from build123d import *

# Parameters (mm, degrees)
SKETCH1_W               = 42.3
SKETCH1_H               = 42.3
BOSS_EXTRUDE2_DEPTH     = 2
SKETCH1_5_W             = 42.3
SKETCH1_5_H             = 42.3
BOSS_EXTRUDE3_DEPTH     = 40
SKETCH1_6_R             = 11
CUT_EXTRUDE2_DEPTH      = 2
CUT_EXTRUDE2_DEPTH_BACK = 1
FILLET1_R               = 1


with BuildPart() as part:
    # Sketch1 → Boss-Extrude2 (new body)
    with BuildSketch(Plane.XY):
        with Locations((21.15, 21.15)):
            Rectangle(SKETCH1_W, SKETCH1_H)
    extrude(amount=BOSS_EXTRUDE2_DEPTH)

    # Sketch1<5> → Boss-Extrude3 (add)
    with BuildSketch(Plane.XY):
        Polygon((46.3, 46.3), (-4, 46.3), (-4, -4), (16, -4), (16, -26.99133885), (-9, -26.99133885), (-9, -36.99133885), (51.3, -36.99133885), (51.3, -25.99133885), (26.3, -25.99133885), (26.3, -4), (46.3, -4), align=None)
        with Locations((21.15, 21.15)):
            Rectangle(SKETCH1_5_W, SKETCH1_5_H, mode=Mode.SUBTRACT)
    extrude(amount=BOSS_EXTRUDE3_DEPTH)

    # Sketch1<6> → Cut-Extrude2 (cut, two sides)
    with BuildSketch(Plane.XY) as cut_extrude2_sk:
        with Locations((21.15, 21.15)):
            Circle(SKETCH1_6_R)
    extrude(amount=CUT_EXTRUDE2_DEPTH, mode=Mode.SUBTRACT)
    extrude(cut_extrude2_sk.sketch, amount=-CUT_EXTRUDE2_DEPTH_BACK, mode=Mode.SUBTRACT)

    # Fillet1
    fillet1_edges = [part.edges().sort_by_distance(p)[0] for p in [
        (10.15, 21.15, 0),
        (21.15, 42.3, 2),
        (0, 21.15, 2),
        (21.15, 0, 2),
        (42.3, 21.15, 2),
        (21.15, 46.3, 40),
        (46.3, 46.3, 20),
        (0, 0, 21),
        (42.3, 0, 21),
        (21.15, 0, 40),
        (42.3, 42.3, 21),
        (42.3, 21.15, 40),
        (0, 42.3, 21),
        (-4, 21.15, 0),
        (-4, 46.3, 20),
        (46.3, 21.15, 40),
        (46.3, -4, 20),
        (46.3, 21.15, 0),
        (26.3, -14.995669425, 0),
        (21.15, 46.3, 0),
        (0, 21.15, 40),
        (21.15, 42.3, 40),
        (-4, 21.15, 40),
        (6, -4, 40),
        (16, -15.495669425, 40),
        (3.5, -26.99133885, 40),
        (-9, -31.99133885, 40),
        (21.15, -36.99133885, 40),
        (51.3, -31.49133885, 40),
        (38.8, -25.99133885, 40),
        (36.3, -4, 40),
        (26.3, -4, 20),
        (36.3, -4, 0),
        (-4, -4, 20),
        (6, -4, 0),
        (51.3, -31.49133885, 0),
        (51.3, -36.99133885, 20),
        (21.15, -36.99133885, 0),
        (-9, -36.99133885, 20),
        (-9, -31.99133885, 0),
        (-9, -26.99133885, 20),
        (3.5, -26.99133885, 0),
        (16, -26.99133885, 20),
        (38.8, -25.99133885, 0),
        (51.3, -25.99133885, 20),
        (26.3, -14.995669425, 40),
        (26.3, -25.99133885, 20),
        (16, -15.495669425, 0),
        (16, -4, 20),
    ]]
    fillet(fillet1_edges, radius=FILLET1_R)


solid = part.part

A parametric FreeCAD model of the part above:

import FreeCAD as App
import Part
import Sketcher
from FreeCAD import Vector


def edges_at(feature, points):
    """Names of the edges that pass closest to the given points."""
    edges = feature.Shape.Edges
    near = lambda p: min(range(len(edges)), key=lambda i: edges[i].distToShape(Part.Vertex(*p))[0])
    return sorted({f"Edge{near(p) + 1}" for p in points})


def add_polygon(sketch, points):
    """Adds a closed chain of lines whose ends are joined by coincident constraints."""
    first, n = sketch.GeometryCount, len(points)
    for a, b in zip(points, points[1:] + points[:1]):
        sketch.addGeometry(Part.LineSegment(App.Vector(*a, 0), App.Vector(*b, 0)), False)
    for i in range(n):
        sketch.addConstraint(Sketcher.Constraint("Coincident", first + i, 2, first + (i + 1) % n, 1))

doc = App.newDocument("Part")
body = doc.addObject("PartDesign::Body", "Body")

# Sketch on XY plane
sketch1 = body.newObject("Sketcher::SketchObject", "Sketch")
sketch1.AttachmentSupport = (doc.getObject("XY_Plane"), [""])
sketch1.MapMode = "FlatFace"
add_polygon(sketch1, [(0, 42.3), (0, 0), (42.3, 0), (42.3, 42.3)])  # lines 0-3
sketch1.addConstraint([
    Sketcher.Constraint("Vertical", 0),
    Sketcher.Constraint("Horizontal", 1),
    Sketcher.Constraint("Vertical", 2),
    Sketcher.Constraint("Horizontal", 3),
    Sketcher.Constraint("Coincident", 0, 2, -1, 1),
    Sketcher.Constraint("Equal", 3, 0),
    Sketcher.Constraint("DistanceX", 1, 1, 1, 2, 42.3),
])
pad1 = body.newObject("PartDesign::Pad", "Pad")
pad1.Profile = sketch1
pad1.Length = 2

# Sketch on XY plane
sketch2 = body.newObject("Sketcher::SketchObject", "Sketch001")
sketch2.AttachmentSupport = (doc.getObject("XY_Plane"), [""])
sketch2.MapMode = "FlatFace"
add_polygon(sketch2, [(46.3, 46.3), (-4, 46.3), (-4, -4), (16, -4), (16, -26.991339), (-9, -26.991339), (-9, -36.991339), (51.3, -36.991339), (51.3, -25.991339), (26.3, -25.991339), (26.3, -4), (46.3, -4)])  # lines 0-11
add_polygon(sketch2, [(42.3, 0), (0, 0), (0, 42.3), (42.3, 42.3)])  # lines 12-15
sketch2.addConstraint([
    Sketcher.Constraint("Horizontal", 0),
    Sketcher.Constraint("Vertical", 1),
    Sketcher.Constraint("Horizontal", 2),
    Sketcher.Constraint("Vertical", 3),
    Sketcher.Constraint("Horizontal", 4),
    Sketcher.Constraint("Vertical", 5),
    Sketcher.Constraint("Horizontal", 6),
    Sketcher.Constraint("Vertical", 7),
    Sketcher.Constraint("Horizontal", 8),
    Sketcher.Constraint("Vertical", 9),
    Sketcher.Constraint("Horizontal", 10),
    Sketcher.Constraint("Vertical", 11),
    Sketcher.Constraint("Horizontal", 12),
    Sketcher.Constraint("Vertical", 13),
    Sketcher.Constraint("Horizontal", 14),
    Sketcher.Constraint("Vertical", 15),
    Sketcher.Constraint("Coincident", 12, 2, -1, 1),
    Sketcher.Constraint("Horizontal", 2, 2, 9, 2),
    Sketcher.Constraint("Equal", 4, 8),
    Sketcher.Constraint("Equal", 2, 10),
    Sketcher.Constraint("Equal", 0, 1),
    Sketcher.Constraint("Equal", 14, 13),
    Sketcher.Constraint("DistanceX", 2, 1, 2, 2, 20.0),
    Sketcher.Constraint("DistanceX", 4, 2, 4, 1, 25.0),
    Sketcher.Constraint("DistanceY", 5, 2, 5, 1, 10.0),
    Sketcher.Constraint("DistanceY", 7, 1, 7, 2, 11.0),
    Sketcher.Constraint("DistanceX", 0, 2, 0, 1, 50.3),
    Sketcher.Constraint("DistanceX", 12, 2, 12, 1, 42.3),
    Sketcher.Constraint("DistanceX", 0, 2, -1, 1, 4.0),
    Sketcher.Constraint("DistanceY", 1, 2, -1, 1, 4.0),
    Sketcher.Constraint("DistanceY", 3, 2, 3, 1, 22.991339),
])
pad2 = body.newObject("PartDesign::Pad", "Pad001")
pad2.Profile = sketch2
pad2.Length = 40

# Sketch on XY plane
sketch3 = body.newObject("Sketcher::SketchObject", "Sketch002")
sketch3.AttachmentSupport = (doc.getObject("XY_Plane"), [""])
sketch3.MapMode = "FlatFace"
sketch3.addGeometry(Part.Circle(Vector(21.15, 21.15, 0), Vector(0, 0, 1), 11), False)
sketch3.addConstraint([
    Sketcher.Constraint("Diameter", 0, 22.0),
    Sketcher.Constraint("DistanceX", -1, 1, 0, 3, 21.15),
    Sketcher.Constraint("DistanceY", -1, 1, 0, 3, 21.15),
])
pocket1 = body.newObject("PartDesign::Pocket", "Pocket")
pocket1.Profile = sketch3
pocket1.Type = "ThroughAll"
pocket1.Midplane = True
doc.recompute()

fillet = body.newObject("PartDesign::Fillet", "Fillet")
fillet.Base = (pocket1, edges_at(pocket1, [
    (10.15, 21.15, 0),
    (21.15, 42.3, 2),
    (0, 21.15, 2),
    (21.15, 0, 2),
    (42.3, 21.15, 2),
    (21.15, 46.3, 40),
    (46.3, 46.3, 20),
    (0, 0, 21),
    (42.3, 0, 21),
    (21.15, 0, 40),
    (42.3, 42.3, 21),
    (42.3, 21.15, 40),
    (0, 42.3, 21),
    (-4, 21.15, 0),
    (-4, 46.3, 20),
    (46.3, 21.15, 40),
    (46.3, -4, 20),
    (46.3, 21.15, 0),
    (26.3, -14.996, 0),
    (21.15, 46.3, 0),
    (0, 21.15, 40),
    (21.15, 42.3, 40),
    (-4, 21.15, 40),
    (6, -4, 40),
    (16, -15.496, 40),
    (3.5, -26.991, 40),
    (-9, -31.991, 40),
    (21.15, -36.991, 40),
    (51.3, -31.491, 40),
    (38.8, -25.991, 40),
    (36.3, -4, 40),
    (26.3, -4, 20),
    (36.3, -4, 0),
    (-4, -4, 20),
    (6, -4, 0),
    (51.3, -31.491, 0),
    (51.3, -36.991, 20),
    (21.15, -36.991, 0),
    (-9, -36.991, 20),
    (-9, -31.991, 0),
    (-9, -26.991, 20),
    (3.5, -26.991, 0),
    (16, -26.991, 20),
    (38.8, -25.991, 0),
    (51.3, -25.991, 20),
    (26.3, -14.996, 40),
    (26.3, -25.991, 20),
    (16, -15.496, 0),
    (16, -4, 20),
]))
fillet.Radius = 1

doc.recompute()
